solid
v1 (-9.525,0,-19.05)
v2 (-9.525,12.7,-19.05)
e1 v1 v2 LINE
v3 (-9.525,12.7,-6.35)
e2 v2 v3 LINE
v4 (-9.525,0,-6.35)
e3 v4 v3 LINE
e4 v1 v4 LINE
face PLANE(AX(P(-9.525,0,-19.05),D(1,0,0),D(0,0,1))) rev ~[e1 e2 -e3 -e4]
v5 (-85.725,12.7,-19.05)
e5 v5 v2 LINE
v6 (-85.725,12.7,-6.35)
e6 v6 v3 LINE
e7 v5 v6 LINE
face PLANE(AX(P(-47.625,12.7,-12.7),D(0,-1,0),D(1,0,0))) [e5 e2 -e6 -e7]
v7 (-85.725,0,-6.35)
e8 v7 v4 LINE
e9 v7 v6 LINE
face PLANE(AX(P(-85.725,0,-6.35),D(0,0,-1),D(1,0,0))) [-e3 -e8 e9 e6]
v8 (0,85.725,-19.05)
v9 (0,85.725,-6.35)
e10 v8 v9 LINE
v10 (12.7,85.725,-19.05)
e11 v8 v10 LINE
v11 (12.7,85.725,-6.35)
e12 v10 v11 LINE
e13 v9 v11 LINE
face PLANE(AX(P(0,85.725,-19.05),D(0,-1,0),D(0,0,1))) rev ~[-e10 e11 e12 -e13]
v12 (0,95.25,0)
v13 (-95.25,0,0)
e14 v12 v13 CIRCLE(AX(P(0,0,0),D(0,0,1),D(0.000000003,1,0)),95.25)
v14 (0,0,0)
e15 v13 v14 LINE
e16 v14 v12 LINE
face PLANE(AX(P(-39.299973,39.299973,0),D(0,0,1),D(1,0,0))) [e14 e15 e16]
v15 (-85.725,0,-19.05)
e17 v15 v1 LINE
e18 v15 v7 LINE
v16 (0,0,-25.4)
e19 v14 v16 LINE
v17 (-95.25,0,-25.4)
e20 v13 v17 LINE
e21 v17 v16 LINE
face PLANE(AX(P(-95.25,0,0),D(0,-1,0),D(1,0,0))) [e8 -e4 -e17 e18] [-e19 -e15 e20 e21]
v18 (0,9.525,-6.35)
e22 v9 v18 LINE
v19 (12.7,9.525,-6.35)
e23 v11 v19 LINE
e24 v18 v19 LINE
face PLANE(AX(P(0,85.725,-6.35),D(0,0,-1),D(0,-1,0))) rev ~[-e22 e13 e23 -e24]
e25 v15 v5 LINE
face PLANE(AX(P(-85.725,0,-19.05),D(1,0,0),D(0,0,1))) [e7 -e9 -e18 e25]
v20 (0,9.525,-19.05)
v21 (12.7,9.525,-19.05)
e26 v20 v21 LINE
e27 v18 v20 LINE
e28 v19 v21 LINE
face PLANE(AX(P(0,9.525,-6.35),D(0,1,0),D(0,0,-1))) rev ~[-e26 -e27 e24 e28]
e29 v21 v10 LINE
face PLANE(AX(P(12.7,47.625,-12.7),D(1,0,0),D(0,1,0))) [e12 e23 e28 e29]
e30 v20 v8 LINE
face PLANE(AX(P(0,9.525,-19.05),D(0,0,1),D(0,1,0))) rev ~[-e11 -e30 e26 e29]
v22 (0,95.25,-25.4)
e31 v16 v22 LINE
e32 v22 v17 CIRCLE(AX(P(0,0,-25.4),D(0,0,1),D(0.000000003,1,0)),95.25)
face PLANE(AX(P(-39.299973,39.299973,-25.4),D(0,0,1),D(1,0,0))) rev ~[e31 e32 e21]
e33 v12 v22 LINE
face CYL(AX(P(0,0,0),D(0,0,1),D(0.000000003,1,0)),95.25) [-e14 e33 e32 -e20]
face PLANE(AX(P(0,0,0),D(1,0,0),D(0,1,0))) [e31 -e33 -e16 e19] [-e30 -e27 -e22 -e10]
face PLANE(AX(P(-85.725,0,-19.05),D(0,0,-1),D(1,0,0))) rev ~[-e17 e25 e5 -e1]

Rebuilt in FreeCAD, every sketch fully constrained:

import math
import FreeCAD as App
import Part
import Sketcher
from FreeCAD import Vector
Q = App.Units.Quantity


def add_polygon(sketch, points):
    """Adds a closed chain of lines whose ends are joined by coincident constraints."""
    first, n = sketch.GeometryCount, len(points)
    for a, b in zip(points, points[1:] + points[:1]):
        sketch.addGeometry(Part.LineSegment(App.Vector(*a, 0), App.Vector(*b, 0)), False)
    for i in range(n):
        sketch.addConstraint(Sketcher.Constraint("Coincident", first + i, 2, first + (i + 1) % n, 1))

doc = App.newDocument("Part")
params = doc.addObject("Spreadsheet::Sheet", "Params")
for row, (alias, value) in enumerate([
    ("sketch1_radius", "3.75 in"),
    ("pad1_length", "1 in"),
    ("sketch2_width", "3 in"),
    ("sketch2_height", "0.5 in"),
    ("pocket1_length", "0.5 in"),
    ("sketch3_width", "3 in"),
    ("sketch3_height", "0.5 in"),
    ("pad2_length", "0.5 in"),
], start=1):
    params.set(f"A{row}", alias)
    params.set(f"B{row}", "=" + value)
    params.setAlias(f"B{row}", alias)

body = doc.addObject("PartDesign::Body", "Body")

# Sketch on XY plane
sketch1 = doc.addObject("Sketcher::SketchObject", "Sketch")
body.addObject(sketch1)
sketch1.AttachmentSupport = (doc.XY_Plane, [""])
sketch1.MapMode = "FlatFace"
sketch1.addGeometry([
    Part.LineSegment(Vector(-95, 0, 0), Vector(0, 0, 0)),
    Part.LineSegment(Vector(0, 0, 0), Vector(0, 95, 0)),
    Part.ArcOfCircle(Part.Circle(Vector(0, 0, 0), Vector(0, 0, 1), 95), math.radians(90), math.radians(180)),
], False)
sketch1.addConstraint([
    Sketcher.Constraint("Coincident", 0, 2, 1, 1),
    Sketcher.Constraint("Coincident", 1, 2, 2, 1),
    Sketcher.Constraint("Coincident", 2, 2, 0, 1),
    Sketcher.Constraint("Horizontal", 0),
    Sketcher.Constraint("Vertical", 1),
    Sketcher.Constraint("Coincident", 2, 3, -1, 1),
    Sketcher.Constraint("Coincident", 0, 2, -1, 1),
    Sketcher.Constraint("Radius", 2, Q("3.75 in")),
])
sketch1.setExpression("Constraints[7]", "Params.sketch1_radius")
pad1 = doc.addObject("PartDesign::Pad", "Pad")
body.addObject(pad1)
pad1.Profile = sketch1
pad1.setExpression("Length", "Params.pad1_length")
pad1.Reversed = True

# Sketch on XZ plane
sketch2 = doc.addObject("Sketcher::SketchObject", "Sketch001")
body.addObject(sketch2)
sketch2.AttachmentSupport = (doc.XZ_Plane, [""])
sketch2.MapMode = "FlatFace"
add_polygon(sketch2, [(-86, -6), (-86, -19), (-10, -19), (-10, -6)])  # lines 0-3
sketch2.addConstraint([
    Sketcher.Constraint("Vertical", 0),
    Sketcher.Constraint("Horizontal", 1),
    Sketcher.Constraint("Vertical", 2),
    Sketcher.Constraint("Horizontal", 3),
    Sketcher.Constraint("DistanceX", 1, 1, 1, 2, Q("3 in")),
    Sketcher.Constraint("DistanceY", 0, 2, 0, 1, Q("0.5 in")),
    Sketcher.Constraint("DistanceY", 0, 2, -1, 1, Q("0.75 in")),
    Sketcher.Constraint("DistanceX", 0, 2, -1, 1, Q("3.375 in")),
])
sketch2.setExpression("Constraints[8]", "Params.sketch2_width")
sketch2.setExpression("Constraints[9]", "Params.sketch2_height")
pocket1 = doc.addObject("PartDesign::Pocket", "Pocket")
body.addObject(pocket1)
pocket1.Profile = sketch2
pocket1.setExpression("Length", "Params.pocket1_length")

# Sketch on YZ plane
sketch3 = doc.addObject("Sketcher::SketchObject", "Sketch002")
body.addObject(sketch3)
sketch3.AttachmentSupport = (doc.YZ_Plane, [""])
sketch3.MapMode = "FlatFace"
add_polygon(sketch3, [(10, -6), (10, -19), (86, -19), (86, -6)])  # lines 0-3
sketch3.addConstraint([
    Sketcher.Constraint("Vertical", 0),
    Sketcher.Constraint("Horizontal", 1),
    Sketcher.Constraint("Vertical", 2),
    Sketcher.Constraint("Horizontal", 3),
    Sketcher.Constraint("DistanceX", 1, 1, 1, 2, Q("3 in")),
    Sketcher.Constraint("DistanceY", 0, 2, 0, 1, Q("0.5 in")),
    Sketcher.Constraint("DistanceY", 0, 2, -1, 1, Q("0.75 in")),
    Sketcher.Constraint("DistanceX", -1, 1, 0, 2, Q("0.375 in")),
])
sketch3.setExpression("Constraints[8]", "Params.sketch3_width")
sketch3.setExpression("Constraints[9]", "Params.sketch3_height")
pad2 = doc.addObject("PartDesign::Pad", "Pad001")
body.addObject(pad2)
pad2.Profile = sketch3
pad2.setExpression("Length", "Params.pad2_length")

doc.recompute()
